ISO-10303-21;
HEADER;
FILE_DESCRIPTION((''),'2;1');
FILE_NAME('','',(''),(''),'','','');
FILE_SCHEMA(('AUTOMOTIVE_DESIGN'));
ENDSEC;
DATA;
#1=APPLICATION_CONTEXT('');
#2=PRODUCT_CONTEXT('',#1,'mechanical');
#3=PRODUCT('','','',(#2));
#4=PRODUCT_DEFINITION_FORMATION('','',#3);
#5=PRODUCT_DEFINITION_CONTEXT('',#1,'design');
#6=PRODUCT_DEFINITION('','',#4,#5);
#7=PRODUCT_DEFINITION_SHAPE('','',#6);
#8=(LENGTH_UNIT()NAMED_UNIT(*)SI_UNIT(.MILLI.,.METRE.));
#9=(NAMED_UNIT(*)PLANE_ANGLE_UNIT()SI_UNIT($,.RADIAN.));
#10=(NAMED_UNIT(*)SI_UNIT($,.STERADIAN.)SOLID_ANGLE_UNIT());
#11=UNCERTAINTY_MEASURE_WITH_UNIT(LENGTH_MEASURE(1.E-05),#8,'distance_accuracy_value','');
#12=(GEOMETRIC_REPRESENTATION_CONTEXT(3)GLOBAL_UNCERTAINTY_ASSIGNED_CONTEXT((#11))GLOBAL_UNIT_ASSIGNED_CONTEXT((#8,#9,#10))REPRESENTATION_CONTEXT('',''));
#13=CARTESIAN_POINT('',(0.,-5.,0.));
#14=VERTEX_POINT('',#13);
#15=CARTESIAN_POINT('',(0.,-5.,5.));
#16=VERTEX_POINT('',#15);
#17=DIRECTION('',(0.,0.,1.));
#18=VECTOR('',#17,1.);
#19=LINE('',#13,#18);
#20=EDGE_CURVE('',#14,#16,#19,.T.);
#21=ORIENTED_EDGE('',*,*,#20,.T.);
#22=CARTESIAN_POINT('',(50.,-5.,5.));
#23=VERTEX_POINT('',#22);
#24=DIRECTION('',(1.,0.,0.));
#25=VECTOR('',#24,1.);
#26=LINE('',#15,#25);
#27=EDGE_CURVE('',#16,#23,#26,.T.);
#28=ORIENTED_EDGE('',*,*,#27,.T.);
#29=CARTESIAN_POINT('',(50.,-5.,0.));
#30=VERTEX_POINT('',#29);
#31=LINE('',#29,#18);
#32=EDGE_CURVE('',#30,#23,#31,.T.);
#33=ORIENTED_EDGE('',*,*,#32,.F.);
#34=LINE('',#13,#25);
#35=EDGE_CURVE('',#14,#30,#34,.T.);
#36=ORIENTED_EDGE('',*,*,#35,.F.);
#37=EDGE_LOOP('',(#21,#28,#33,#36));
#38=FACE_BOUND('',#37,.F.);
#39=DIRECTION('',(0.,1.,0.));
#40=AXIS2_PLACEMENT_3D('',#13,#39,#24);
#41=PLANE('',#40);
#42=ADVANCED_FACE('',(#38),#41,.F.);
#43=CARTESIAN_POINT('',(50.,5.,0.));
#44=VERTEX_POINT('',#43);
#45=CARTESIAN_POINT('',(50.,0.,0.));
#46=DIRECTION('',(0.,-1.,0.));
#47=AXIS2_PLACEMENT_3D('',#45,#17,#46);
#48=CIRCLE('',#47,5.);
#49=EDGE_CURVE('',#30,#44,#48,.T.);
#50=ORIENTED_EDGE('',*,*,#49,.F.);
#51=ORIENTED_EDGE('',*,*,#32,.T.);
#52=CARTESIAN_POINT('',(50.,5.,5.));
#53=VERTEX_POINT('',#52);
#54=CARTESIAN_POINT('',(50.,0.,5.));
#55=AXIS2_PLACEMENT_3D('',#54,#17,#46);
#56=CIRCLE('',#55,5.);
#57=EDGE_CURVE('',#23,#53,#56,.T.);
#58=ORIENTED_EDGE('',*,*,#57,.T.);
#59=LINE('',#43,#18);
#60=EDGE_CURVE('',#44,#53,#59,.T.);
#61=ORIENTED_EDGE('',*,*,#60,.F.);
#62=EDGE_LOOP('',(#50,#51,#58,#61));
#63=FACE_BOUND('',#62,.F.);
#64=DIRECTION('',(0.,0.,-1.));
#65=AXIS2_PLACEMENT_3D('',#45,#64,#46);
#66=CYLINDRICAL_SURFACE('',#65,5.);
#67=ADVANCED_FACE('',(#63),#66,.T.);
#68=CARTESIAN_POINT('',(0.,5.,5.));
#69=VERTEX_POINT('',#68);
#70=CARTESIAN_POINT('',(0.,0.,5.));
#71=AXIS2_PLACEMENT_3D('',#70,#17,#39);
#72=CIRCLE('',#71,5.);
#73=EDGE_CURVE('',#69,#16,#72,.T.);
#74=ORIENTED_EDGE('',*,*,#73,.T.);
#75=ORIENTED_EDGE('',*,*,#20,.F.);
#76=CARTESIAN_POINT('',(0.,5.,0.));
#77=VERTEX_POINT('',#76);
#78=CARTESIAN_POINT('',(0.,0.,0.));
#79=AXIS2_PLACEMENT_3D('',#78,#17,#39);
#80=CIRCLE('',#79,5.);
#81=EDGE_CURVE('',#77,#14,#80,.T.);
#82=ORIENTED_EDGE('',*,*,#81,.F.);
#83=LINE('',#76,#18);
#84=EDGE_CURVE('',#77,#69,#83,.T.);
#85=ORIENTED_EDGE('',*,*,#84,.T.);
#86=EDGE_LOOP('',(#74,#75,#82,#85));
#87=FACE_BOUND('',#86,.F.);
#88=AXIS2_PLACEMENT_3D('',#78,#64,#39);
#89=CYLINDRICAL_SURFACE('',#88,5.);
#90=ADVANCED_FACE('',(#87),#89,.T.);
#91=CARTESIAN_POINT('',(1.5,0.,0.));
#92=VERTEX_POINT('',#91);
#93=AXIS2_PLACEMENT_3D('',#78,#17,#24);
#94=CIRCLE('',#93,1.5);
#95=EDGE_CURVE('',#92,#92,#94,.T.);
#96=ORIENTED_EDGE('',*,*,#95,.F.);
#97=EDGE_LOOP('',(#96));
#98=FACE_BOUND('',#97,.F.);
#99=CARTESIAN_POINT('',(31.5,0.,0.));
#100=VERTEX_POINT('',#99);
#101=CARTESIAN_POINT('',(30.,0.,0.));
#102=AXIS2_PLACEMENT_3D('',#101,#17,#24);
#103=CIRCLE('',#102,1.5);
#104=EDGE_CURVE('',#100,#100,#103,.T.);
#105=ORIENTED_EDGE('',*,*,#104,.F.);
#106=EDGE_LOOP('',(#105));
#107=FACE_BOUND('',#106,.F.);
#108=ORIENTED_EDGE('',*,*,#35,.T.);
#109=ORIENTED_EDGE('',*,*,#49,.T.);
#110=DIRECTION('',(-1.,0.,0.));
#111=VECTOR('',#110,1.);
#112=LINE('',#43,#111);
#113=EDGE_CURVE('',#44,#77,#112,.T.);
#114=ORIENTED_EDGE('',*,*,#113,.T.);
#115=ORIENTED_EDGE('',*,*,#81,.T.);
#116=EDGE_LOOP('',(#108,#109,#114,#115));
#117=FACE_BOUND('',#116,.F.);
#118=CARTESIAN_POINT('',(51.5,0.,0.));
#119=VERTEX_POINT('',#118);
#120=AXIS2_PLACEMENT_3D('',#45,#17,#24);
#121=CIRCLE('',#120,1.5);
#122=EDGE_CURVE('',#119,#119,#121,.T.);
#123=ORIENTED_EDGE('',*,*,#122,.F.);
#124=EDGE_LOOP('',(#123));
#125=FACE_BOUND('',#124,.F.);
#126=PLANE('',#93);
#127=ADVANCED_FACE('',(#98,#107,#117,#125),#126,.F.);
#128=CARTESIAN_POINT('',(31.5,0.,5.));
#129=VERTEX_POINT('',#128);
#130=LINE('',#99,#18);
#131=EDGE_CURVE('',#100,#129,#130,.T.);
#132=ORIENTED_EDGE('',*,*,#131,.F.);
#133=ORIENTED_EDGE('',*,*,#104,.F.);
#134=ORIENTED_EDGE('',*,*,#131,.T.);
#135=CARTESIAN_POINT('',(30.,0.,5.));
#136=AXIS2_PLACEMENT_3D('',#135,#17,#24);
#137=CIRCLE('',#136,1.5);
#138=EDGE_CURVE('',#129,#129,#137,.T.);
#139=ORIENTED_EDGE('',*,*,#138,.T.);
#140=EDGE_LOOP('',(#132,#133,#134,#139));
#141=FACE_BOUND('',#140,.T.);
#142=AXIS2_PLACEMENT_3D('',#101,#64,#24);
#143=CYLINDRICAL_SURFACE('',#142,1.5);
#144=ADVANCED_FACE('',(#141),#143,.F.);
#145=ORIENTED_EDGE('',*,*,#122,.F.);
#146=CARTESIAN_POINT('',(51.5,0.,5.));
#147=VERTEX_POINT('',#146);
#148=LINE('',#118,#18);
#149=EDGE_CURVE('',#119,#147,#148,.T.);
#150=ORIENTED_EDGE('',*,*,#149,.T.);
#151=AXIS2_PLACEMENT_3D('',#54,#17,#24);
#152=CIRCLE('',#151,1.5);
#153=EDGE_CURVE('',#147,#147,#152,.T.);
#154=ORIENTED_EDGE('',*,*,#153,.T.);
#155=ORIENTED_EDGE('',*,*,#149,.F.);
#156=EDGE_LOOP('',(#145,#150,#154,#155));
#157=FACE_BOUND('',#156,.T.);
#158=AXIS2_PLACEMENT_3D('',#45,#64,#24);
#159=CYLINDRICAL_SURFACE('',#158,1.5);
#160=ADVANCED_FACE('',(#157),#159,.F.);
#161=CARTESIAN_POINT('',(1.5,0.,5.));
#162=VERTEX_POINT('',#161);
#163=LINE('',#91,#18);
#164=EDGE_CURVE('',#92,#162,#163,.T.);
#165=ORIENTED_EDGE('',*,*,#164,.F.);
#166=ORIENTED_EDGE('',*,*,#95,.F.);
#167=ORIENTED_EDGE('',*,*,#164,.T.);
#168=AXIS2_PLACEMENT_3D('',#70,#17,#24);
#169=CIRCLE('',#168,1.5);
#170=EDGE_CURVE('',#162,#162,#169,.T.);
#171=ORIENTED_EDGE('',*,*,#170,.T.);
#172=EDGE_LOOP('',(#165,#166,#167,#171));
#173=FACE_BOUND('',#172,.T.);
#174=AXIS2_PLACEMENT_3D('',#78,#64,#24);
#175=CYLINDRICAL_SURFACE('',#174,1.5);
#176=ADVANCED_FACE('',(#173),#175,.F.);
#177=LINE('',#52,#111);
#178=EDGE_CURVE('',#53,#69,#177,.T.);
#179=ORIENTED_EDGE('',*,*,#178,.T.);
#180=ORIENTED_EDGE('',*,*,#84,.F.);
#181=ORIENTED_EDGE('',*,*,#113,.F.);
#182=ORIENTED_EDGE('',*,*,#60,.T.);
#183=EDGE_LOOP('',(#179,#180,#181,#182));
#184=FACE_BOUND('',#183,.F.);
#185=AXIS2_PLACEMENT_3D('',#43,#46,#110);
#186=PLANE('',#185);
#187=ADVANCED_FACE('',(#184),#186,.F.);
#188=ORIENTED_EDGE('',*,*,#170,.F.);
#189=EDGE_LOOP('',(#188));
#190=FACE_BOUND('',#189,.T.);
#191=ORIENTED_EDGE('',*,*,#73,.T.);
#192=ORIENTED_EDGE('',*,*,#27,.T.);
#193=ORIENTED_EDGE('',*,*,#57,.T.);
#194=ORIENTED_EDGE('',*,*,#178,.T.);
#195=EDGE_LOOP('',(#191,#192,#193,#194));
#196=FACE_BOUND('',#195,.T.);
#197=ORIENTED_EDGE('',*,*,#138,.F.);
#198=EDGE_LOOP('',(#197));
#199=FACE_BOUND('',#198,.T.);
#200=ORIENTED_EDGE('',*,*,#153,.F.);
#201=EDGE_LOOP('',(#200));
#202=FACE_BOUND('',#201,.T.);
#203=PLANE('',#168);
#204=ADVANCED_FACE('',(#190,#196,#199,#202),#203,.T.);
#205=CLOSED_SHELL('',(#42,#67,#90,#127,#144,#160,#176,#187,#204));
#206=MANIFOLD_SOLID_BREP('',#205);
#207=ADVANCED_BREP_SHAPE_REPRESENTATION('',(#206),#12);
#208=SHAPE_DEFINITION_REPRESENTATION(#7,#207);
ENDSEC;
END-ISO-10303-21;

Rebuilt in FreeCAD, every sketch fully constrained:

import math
import FreeCAD as App
import Part
import Sketcher
Q = App.Units.Quantity

doc = App.newDocument("Part")
params = doc.addObject("Spreadsheet::Sheet", "Params")
for row, (alias, value) in enumerate([
    ("sketch1_diameter", "3 mm"),
    ("sketch1_radius", "5 mm"),
    ("sketch1_width", "50 mm"),
    ("pad1_length", "5 mm"),
], start=1):
    params.set(f"A{row}", alias)
    params.set(f"B{row}", "=" + value)
    params.setAlias(f"B{row}", alias)

body = doc.addObject("PartDesign::Body", "Body")

# Sketch on XY plane
sketch1 = body.newObject("Sketcher::SketchObject", "Sketch")
sketch1.AttachmentSupport = (doc.getObject("XY_Plane"), [""])
sketch1.MapMode = "FlatFace"
sketch1.addGeometry([
    Part.ArcOfCircle(Part.Circle(App.Vector(0, 0, 0), App.Vector(0, 0, 1), 5), math.radians(90), math.radians(270)),  # 0
    Part.LineSegment(App.Vector(0, -5, 0), App.Vector(50, -5, 0)),  # 1
    Part.ArcOfCircle(Part.Circle(App.Vector(50, 0, 0), App.Vector(0, 0, 1), 5), math.radians(-90), math.radians(90)),  # 2
    Part.LineSegment(App.Vector(50, 5, 0), App.Vector(0, 5, 0)),  # 3
    Part.Circle(App.Vector(0, 0, 0), App.Vector(0, 0, 1), 1.5),  # 4
    Part.Circle(App.Vector(30, 0, 0), App.Vector(0, 0, 1), 1.5),  # 5
    Part.Circle(App.Vector(50, 0, 0), App.Vector(0, 0, 1), 1.5),  # 6
], False)
sketch1.addConstraint([
    Sketcher.Constraint("Tangent", 0, 2, 1, 1),
    Sketcher.Constraint("Tangent", 1, 2, 2, 1),
    Sketcher.Constraint("Tangent", 2, 2, 3, 1),
    Sketcher.Constraint("Tangent", 3, 2, 0, 1),
    Sketcher.Constraint("Horizontal", 1),
    Sketcher.Constraint("Horizontal", 3),
    Sketcher.Constraint("Coincident", 0, 3, -1, 1),
    Sketcher.Constraint("Coincident", 4, 3, -1, 1),
    Sketcher.Constraint("Coincident", 6, 3, 2, 3),
    Sketcher.Constraint("Equal", 4, 5),
    Sketcher.Constraint("Equal", 5, 6),
    Sketcher.Constraint("PointOnObject", 5, 3, -1),
    Sketcher.Constraint("Diameter", 4, Q("3 mm")),
    Sketcher.Constraint("Radius", 0, Q("5 mm")),
    Sketcher.Constraint("DistanceX", 1, 1, 1, 2, Q("50 mm")),
    Sketcher.Constraint("DistanceX", 5, 3, 2, 3, Q("20 mm")),
])
sketch1.setExpression("Constraints[12]", "Params.sketch1_diameter")
sketch1.setExpression("Constraints[13]", "Params.sketch1_radius")
sketch1.setExpression("Constraints[14]", "Params.sketch1_width")
pad1 = body.newObject("PartDesign::Pad", "Pad")
pad1.Profile = sketch1
pad1.setExpression("Length", "Params.pad1_length")

doc.recompute()
